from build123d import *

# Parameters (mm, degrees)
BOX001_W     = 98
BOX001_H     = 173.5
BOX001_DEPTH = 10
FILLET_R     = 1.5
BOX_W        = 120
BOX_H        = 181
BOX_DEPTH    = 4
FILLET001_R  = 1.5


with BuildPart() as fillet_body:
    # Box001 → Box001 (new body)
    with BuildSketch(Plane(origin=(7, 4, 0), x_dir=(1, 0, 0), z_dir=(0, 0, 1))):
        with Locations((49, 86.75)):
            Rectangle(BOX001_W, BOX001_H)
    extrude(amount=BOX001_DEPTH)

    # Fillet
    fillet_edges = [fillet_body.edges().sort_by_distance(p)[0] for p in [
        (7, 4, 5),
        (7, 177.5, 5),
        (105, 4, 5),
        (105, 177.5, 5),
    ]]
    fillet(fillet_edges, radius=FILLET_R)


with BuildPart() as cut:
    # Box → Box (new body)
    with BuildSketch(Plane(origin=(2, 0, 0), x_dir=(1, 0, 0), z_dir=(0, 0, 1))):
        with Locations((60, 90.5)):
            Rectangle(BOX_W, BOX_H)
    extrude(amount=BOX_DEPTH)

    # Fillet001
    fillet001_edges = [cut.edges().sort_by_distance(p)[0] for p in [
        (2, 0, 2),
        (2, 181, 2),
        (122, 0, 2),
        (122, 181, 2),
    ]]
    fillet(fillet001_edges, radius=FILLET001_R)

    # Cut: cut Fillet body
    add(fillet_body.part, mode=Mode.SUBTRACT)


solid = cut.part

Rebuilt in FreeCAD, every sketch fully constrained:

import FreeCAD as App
import Part
import Sketcher

V = App.Vector
Q = App.Units.Quantity


def edges_at(feature, points):
    """Names of the edges that pass closest to the given points."""
    edges = feature.Shape.Edges
    near = lambda p: min(range(len(edges)), key=lambda i: edges[i].distToShape(Part.Vertex(*p))[0])
    return sorted({f"Edge{near(p) + 1}" for p in points})


def add_polygon(sketch, points):
    """Adds a closed chain of lines whose ends are joined by coincident constraints."""
    first, n = sketch.GeometryCount, len(points)
    for a, b in zip(points, points[1:] + points[:1]):
        sketch.addGeometry(Part.LineSegment(App.Vector(*a, 0), App.Vector(*b, 0)), False)
    for i in range(n):
        sketch.addConstraint(Sketcher.Constraint("Coincident", first + i, 2, first + (i + 1) % n, 1))

doc = App.newDocument("Part")
body = doc.addObject("PartDesign::Body", "Body")

# Sketch on XY plane
sketch1 = body.newObject("Sketcher::SketchObject", "Sketch")
sketch1.AttachmentSupport = (doc.getObject("XY_Plane"), [""])
sketch1.MapMode = "FlatFace"
add_polygon(sketch1, [(7, 178), (7, 4), (105, 4), (105, 178)])  # lines 0-3
sketch1.addConstraint([
    Sketcher.Constraint("Vertical", 0),
    Sketcher.Constraint("Horizontal", 1),
    Sketcher.Constraint("Vertical", 2),
    Sketcher.Constraint("Horizontal", 3),
    Sketcher.Constraint("DistanceX", 1, 1, 1, 2, Q("98 mm")),
    Sketcher.Constraint("DistanceY", 0, 2, 0, 1, Q("173.5 mm")),
    Sketcher.Constraint("DistanceX", -1, 1, 0, 2, Q("7 mm")),
    Sketcher.Constraint("DistanceY", -1, 1, 0, 2, Q("4 mm")),
])
pad1 = body.newObject("PartDesign::Pad", "Pad")
pad1.Profile = sketch1
pad1.Length = 10
doc.recompute()

fillet = body.newObject("PartDesign::Fillet", "Fillet")
fillet.Base = (pad1, edges_at(pad1, [
    (7, 4, 5),
    (7, 177.5, 5),
    (105, 4, 5),
    (105, 177.5, 5),
]))
fillet.Radius = 1.5
body2 = doc.addObject("PartDesign::Body", "Body001")

# Sketch on XY plane
sketch2 = body2.newObject("Sketcher::SketchObject", "Sketch001")
sketch2.AttachmentSupport = (doc.getObject("XY_Plane001"), [""])
sketch2.MapMode = "FlatFace"
add_polygon(sketch2, [(2, 181), (2, 0), (122, 0), (122, 181)])  # lines 0-3
sketch2.addConstraint([
    Sketcher.Constraint("Vertical", 0),
    Sketcher.Constraint("Horizontal", 1),
    Sketcher.Constraint("Vertical", 2),
    Sketcher.Constraint("Horizontal", 3),
    Sketcher.Constraint("PointOnObject", 0, 2, -1),
    Sketcher.Constraint("DistanceX", 1, 1, 1, 2, Q("120 mm")),
    Sketcher.Constraint("DistanceY", 0, 2, 0, 1, Q("181 mm")),
    Sketcher.Constraint("DistanceX", -1, 1, 0, 2, Q("2 mm")),
])
pad2 = body2.newObject("PartDesign::Pad", "Pad001")
pad2.Profile = sketch2
pad2.Length = 4
doc.recompute()

fillet2 = body2.newObject("PartDesign::Fillet", "Fillet001")
fillet2.Base = (pad2, edges_at(pad2, [
    (2, 0, 2),
    (2, 181, 2),
    (122, 0, 2),
    (122, 181, 2),
]))
fillet2.Radius = 1.5
doc.recompute()

boolean = body2.newObject("PartDesign::Boolean", "Boolean")
boolean.Type = "Cut"
boolean.addObjects([body])

doc.recompute()
